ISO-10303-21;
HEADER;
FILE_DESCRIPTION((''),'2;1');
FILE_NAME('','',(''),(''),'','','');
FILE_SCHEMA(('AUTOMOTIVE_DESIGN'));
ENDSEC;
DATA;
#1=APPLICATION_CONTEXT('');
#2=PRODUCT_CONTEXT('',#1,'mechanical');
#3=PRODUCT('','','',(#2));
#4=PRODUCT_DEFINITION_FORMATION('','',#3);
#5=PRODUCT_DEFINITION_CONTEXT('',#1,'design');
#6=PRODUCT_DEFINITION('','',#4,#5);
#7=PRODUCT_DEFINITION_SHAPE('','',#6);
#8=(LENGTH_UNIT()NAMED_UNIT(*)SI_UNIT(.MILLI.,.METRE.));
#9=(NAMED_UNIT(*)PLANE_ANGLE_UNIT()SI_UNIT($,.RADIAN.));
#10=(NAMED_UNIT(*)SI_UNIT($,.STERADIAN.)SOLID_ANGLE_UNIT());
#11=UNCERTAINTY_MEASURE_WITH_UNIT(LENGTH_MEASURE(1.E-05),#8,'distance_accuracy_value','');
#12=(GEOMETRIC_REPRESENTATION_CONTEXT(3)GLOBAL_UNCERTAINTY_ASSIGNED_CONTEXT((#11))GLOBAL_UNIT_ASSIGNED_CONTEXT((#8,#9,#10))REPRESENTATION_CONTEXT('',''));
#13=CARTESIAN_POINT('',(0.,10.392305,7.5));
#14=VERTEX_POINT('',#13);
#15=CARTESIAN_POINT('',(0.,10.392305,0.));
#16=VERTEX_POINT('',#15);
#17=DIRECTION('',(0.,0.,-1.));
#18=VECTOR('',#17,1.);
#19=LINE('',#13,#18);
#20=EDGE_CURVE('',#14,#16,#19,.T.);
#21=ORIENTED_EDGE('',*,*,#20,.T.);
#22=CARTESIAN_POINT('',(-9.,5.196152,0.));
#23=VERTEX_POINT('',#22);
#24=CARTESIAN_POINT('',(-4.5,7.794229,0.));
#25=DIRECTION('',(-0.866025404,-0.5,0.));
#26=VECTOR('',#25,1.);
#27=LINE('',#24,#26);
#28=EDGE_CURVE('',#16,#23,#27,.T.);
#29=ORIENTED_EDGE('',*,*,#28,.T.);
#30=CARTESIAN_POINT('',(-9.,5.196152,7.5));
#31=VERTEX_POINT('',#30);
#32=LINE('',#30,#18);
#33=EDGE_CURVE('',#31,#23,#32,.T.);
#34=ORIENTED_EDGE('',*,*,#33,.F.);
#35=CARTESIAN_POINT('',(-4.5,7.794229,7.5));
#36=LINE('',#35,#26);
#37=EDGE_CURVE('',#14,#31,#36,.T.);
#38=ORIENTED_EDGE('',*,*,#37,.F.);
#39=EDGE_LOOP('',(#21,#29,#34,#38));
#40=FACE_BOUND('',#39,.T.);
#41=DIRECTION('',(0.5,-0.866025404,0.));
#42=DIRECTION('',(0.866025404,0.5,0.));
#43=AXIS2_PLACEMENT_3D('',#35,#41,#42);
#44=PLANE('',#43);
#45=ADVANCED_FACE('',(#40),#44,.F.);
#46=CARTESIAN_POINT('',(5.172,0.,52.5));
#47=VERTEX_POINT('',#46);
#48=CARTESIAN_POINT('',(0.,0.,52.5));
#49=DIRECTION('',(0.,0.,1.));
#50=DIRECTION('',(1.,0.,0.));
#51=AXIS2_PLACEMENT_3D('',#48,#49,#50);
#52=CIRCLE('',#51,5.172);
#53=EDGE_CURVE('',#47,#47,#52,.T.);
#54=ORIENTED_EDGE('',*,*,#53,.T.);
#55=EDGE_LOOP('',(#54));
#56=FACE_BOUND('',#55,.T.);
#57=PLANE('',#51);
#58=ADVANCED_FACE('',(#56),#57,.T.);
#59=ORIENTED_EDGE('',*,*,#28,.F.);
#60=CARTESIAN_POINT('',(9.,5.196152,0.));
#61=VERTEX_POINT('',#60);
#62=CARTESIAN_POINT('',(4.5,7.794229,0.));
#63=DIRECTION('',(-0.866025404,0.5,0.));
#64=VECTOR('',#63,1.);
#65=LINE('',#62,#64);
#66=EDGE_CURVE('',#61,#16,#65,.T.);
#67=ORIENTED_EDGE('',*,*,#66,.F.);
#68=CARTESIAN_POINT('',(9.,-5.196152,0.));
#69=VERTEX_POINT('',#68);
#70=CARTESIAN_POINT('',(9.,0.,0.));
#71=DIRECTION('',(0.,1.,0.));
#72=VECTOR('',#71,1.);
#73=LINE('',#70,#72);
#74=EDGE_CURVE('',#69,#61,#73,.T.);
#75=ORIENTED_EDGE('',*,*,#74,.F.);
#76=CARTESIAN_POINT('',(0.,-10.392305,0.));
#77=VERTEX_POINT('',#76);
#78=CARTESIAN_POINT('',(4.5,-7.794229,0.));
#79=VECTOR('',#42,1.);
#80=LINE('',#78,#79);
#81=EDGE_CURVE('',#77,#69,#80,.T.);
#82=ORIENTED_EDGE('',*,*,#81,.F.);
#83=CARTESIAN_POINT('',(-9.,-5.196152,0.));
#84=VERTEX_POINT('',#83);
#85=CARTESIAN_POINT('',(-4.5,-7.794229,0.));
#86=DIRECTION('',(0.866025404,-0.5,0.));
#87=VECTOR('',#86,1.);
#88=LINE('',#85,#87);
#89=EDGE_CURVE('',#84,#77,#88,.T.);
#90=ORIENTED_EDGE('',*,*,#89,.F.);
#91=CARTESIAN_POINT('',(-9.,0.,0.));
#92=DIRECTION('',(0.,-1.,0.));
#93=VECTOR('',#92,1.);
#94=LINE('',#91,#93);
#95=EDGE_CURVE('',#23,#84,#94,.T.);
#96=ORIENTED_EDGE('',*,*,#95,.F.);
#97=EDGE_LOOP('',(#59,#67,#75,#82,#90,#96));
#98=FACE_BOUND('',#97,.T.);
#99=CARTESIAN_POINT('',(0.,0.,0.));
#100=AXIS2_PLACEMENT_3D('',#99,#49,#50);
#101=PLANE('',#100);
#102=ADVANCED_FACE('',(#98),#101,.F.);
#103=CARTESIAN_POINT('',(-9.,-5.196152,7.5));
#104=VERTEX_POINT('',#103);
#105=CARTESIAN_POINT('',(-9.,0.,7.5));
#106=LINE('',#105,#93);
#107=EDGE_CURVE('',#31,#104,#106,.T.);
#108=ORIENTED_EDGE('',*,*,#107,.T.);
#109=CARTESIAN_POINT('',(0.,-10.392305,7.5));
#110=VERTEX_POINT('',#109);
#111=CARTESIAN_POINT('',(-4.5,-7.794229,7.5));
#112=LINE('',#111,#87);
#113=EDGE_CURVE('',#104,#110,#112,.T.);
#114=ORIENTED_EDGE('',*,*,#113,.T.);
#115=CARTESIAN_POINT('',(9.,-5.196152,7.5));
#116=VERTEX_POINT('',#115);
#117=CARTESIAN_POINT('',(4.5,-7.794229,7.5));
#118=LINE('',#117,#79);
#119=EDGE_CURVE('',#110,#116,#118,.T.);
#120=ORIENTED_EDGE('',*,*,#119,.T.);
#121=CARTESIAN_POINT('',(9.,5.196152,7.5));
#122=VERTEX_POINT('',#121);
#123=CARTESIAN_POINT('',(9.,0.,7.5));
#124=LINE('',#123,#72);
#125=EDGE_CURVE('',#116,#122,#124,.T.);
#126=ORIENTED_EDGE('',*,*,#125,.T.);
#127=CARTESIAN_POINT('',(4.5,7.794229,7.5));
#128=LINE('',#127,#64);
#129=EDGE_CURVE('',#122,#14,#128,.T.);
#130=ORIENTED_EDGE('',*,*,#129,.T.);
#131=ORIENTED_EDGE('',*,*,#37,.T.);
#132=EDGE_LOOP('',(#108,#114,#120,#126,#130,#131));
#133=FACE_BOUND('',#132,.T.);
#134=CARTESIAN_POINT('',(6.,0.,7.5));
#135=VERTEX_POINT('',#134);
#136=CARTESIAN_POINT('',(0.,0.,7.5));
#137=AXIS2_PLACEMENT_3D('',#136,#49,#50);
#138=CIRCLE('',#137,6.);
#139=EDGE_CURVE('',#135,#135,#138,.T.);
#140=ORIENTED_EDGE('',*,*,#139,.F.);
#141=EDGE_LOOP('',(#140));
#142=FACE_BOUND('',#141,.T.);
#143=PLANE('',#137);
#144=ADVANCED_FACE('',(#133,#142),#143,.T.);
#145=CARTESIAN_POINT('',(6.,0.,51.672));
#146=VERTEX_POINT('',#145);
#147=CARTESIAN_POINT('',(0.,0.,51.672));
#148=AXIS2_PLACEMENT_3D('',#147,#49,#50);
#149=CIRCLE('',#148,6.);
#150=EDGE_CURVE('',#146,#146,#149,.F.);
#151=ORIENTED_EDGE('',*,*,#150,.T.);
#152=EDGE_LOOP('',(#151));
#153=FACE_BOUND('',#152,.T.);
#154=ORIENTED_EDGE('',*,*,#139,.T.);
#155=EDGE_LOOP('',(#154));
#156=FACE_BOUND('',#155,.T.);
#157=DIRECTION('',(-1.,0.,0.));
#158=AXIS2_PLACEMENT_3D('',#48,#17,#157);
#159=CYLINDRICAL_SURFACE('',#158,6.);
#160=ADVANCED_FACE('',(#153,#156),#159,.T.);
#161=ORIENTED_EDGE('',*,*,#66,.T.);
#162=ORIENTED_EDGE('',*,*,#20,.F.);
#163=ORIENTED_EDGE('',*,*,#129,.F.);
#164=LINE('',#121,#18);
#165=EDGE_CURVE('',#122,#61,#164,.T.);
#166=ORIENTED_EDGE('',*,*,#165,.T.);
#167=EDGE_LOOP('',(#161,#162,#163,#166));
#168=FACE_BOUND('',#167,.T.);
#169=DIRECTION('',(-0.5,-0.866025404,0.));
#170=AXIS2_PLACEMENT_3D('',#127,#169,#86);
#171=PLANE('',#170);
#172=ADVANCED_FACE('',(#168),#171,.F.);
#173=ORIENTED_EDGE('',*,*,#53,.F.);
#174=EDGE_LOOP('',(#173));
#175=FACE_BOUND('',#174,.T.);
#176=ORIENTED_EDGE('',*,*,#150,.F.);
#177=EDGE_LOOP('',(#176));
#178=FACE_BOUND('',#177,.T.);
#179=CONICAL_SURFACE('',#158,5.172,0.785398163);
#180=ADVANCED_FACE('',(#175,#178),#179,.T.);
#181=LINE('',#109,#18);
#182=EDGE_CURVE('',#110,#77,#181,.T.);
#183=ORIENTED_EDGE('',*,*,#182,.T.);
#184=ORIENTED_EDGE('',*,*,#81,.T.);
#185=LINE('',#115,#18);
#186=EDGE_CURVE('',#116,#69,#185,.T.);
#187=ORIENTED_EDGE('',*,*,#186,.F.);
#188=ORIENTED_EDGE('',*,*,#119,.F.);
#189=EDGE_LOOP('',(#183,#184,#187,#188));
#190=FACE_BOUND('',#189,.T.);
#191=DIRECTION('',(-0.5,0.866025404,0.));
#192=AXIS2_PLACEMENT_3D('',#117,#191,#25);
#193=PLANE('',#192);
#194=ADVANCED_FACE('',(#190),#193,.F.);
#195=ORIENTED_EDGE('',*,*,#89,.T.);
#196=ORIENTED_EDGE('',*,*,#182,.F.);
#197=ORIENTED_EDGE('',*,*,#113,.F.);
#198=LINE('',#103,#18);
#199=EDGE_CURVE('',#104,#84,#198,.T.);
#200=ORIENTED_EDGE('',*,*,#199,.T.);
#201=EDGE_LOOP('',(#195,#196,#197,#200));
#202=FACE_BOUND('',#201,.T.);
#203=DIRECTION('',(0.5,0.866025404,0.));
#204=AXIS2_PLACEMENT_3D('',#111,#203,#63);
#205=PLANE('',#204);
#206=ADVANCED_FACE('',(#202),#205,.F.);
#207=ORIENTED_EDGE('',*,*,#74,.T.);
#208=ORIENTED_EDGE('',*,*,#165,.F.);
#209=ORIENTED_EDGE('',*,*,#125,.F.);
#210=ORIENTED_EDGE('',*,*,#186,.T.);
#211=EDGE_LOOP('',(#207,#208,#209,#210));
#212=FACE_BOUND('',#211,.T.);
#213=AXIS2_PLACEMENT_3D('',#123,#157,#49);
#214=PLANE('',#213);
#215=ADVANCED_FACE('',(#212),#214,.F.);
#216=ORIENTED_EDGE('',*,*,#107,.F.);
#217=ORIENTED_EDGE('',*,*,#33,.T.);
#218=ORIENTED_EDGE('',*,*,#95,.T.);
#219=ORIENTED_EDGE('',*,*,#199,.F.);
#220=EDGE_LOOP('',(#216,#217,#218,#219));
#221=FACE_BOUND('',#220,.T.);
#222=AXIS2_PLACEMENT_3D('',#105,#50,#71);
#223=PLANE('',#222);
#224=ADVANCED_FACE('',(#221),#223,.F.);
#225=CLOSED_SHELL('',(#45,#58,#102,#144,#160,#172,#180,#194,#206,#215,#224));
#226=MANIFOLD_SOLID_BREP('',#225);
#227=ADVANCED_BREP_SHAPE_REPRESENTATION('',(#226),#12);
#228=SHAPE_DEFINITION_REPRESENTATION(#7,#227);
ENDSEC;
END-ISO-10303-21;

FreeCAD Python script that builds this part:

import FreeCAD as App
import Part
import Sketcher
from FreeCAD import Vector
Q = App.Units.Quantity


def edges_at(feature, points):
    """Names of the edges that pass closest to the given points."""
    edges = feature.Shape.Edges
    near = lambda p: min(range(len(edges)), key=lambda i: edges[i].distToShape(Part.Vertex(*p))[0])
    return sorted({f"Edge{near(p) + 1}" for p in points})

doc = App.newDocument("Part")
body = doc.addObject("PartDesign::Body", "Body")

sketch1 = doc.addObject("Sketcher::SketchObject", "Sketch")
body.addObject(sketch1)
sketch1.AttachmentSupport = (doc.XY_Plane, [""])
sketch1.MapMode = "FlatFace"
sketch1.addGeometry([
    Part.LineSegment(Vector(0, 10.392305, 0), Vector(-9, 5.196152, 0)),
    Part.LineSegment(Vector(-9, 5.196152, 0), Vector(-9, -5.196152, 0)),
    Part.LineSegment(Vector(-9, -5.196152, 0), Vector(0, -10.392305, 0)),
    Part.LineSegment(Vector(0, -10.392305, 0), Vector(9, -5.196152, 0)),
    Part.LineSegment(Vector(9, -5.196152, 0), Vector(9, 5.196152, 0)),
    Part.LineSegment(Vector(9, 5.196152, 0), Vector(0, 10.392305, 0)),
], False)
sketch1.addConstraint([
    Sketcher.Constraint("Coincident", 0, 2, 1, 1),
    Sketcher.Constraint("Coincident", 1, 2, 2, 1),
    Sketcher.Constraint("Coincident", 2, 2, 3, 1),
    Sketcher.Constraint("Coincident", 3, 2, 4, 1),
    Sketcher.Constraint("Coincident", 4, 2, 5, 1),
    Sketcher.Constraint("Coincident", 5, 2, 0, 1),
    Sketcher.Constraint("Vertical", 1),
    Sketcher.Constraint("Vertical", 4),
    Sketcher.Constraint("Symmetric", 0, 2, 3, 2, -1, 1),
    Sketcher.Constraint("Symmetric", 2, 2, 5, 2, -1, 1),
    Sketcher.Constraint("PointOnObject", 2, 2, -2),
    Sketcher.Constraint("Parallel", 2, 5),
    Sketcher.Constraint("Horizontal", 1, 2, 3, 2),
    Sketcher.Constraint("Angle", 0, Q("-150 deg")),
    Sketcher.Constraint("DistanceX", 0, 2, -1, 1, 9.0),
    Sketcher.Constraint("DistanceY", 1, 2, 1, 1, 10.392305),
])
pad1 = doc.addObject("PartDesign::Pad", "Pad")
body.addObject(pad1)
pad1.Profile = sketch1
pad1.Length = 7.5

sketch2 = doc.addObject("Sketcher::SketchObject", "Sketch001")
body.addObject(sketch2)
sketch2.AttachmentSupport = (doc.XY_Plane, [""])
sketch2.MapMode = "FlatFace"
sketch2.AttachmentOffset = App.Placement(Vector(0, 0, 7.5), App.Rotation())
sketch2.addGeometry(Part.Circle(Vector(0, 0, 0), Vector(0, 0, 1), 6), False)
sketch2.addConstraint([
    Sketcher.Constraint("Coincident", 0, 3, -1, 1),
    Sketcher.Constraint("Diameter", 0, 12.0),
])
pad2 = doc.addObject("PartDesign::Pad", "Pad001")
body.addObject(pad2)
pad2.Profile = sketch2
pad2.Length = 45
doc.recompute()

chamfer = doc.addObject("PartDesign::Chamfer", "Chamfer")
body.addObject(chamfer)
chamfer.Base = (pad2, edges_at(pad2, [(-6, 0, 52.5)]))
chamfer.Size = 0.828

doc.recompute()
